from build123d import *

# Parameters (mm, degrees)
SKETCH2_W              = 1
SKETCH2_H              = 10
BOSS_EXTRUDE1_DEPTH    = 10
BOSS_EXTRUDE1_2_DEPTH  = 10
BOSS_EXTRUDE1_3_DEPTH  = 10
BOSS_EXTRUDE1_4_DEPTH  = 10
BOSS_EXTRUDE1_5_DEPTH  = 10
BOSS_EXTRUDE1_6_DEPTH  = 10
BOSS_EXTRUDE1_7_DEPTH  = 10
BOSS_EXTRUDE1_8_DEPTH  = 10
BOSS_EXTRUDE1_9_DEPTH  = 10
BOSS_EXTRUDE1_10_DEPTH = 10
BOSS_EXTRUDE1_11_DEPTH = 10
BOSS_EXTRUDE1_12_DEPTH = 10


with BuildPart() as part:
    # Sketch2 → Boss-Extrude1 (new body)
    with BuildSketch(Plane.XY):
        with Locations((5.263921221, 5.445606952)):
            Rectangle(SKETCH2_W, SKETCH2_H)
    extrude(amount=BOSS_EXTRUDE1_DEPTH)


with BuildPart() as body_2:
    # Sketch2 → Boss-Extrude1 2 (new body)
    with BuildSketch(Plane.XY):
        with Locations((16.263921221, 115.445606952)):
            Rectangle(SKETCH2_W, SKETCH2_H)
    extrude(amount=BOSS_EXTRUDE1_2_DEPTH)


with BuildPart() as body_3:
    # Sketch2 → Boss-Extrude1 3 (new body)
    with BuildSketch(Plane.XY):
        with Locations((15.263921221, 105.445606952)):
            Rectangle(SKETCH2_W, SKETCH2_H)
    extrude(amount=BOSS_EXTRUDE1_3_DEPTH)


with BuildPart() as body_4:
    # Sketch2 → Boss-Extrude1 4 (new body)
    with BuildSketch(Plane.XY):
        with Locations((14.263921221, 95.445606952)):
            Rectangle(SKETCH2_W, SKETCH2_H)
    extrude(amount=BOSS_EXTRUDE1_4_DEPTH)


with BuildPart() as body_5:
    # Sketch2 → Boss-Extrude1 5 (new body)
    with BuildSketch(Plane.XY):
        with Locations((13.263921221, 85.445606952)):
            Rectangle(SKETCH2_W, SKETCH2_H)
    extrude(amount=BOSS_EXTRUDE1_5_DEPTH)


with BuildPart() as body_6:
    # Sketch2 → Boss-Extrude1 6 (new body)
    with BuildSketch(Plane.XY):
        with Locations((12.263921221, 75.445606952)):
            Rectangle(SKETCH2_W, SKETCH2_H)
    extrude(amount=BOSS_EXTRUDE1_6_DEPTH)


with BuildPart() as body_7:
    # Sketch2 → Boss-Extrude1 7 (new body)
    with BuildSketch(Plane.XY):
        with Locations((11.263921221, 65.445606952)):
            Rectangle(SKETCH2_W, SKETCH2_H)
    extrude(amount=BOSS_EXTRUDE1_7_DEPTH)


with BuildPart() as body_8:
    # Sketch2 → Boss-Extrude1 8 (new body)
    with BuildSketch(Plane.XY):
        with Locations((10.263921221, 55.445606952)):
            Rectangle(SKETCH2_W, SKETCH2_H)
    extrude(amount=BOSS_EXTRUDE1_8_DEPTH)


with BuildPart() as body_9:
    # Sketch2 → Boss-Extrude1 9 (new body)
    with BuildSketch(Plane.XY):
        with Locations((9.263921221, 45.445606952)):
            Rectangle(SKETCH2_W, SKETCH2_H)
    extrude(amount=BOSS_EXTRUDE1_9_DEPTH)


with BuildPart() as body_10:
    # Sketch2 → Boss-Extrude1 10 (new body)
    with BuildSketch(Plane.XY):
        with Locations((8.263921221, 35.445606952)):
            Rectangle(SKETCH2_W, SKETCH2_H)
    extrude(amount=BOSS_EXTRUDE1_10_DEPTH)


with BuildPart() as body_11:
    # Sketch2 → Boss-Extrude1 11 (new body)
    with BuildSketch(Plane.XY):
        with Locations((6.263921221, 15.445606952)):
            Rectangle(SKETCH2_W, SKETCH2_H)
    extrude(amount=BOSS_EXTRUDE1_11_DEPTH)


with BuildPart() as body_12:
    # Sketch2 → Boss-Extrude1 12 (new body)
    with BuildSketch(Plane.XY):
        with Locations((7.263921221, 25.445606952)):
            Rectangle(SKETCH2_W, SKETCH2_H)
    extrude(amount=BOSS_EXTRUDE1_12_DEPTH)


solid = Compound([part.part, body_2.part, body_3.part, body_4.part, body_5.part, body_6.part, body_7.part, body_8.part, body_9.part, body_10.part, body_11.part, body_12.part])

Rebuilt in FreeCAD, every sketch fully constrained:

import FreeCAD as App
import Part
import Sketcher
from FreeCAD import Vector


def add_polygon(sketch, points):
    """Adds a closed chain of lines whose ends are joined by coincident constraints."""
    first, n = sketch.GeometryCount, len(points)
    for a, b in zip(points, points[1:] + points[:1]):
        sketch.addGeometry(Part.LineSegment(App.Vector(*a, 0), App.Vector(*b, 0)), False)
    for i in range(n):
        sketch.addConstraint(Sketcher.Constraint("Coincident", first + i, 2, first + (i + 1) % n, 1))

doc = App.newDocument("Part")
body = doc.addObject("PartDesign::Body", "Body")

# Sketch on XY plane
sketch1 = doc.addObject("Sketcher::SketchObject", "Sketch")
body.addObject(sketch1)
sketch1.AttachmentSupport = (doc.XY_Plane, [""])
sketch1.MapMode = "FlatFace"
add_polygon(sketch1, [(4.763921, 10.445607), (4.763921, 0.445607), (5.763921, 0.445607), (5.763921, 10.445607)])  # lines 0-3
sketch1.addConstraint([
    Sketcher.Constraint("Vertical", 0),
    Sketcher.Constraint("Horizontal", 1),
    Sketcher.Constraint("Vertical", 2),
    Sketcher.Constraint("Horizontal", 3),
    Sketcher.Constraint("DistanceX", 1, 1, 1, 2, 1.0),
    Sketcher.Constraint("DistanceY", 0, 2, 0, 1, 10.0),
    Sketcher.Constraint("DistanceX", -1, 1, 0, 2, 4.763921),
    Sketcher.Constraint("DistanceY", -1, 1, 0, 2, 0.445607),
])
pad1 = doc.addObject("PartDesign::Pad", "Pad")
body.addObject(pad1)
pad1.Profile = sketch1
pad1.Length = 10
body2 = doc.addObject("PartDesign::Body", "Body001")

# Sketch on XY plane
sketch2 = doc.addObject("Sketcher::SketchObject", "Sketch001")
body2.addObject(sketch2)
sketch2.AttachmentSupport = (doc.getObject("XY_Plane001"), [""])
sketch2.MapMode = "FlatFace"
add_polygon(sketch2, [(15.763921, 120.445607), (15.763921, 110.445607), (16.763921, 110.445607), (16.763921, 120.445607)])  # lines 0-3
sketch2.addConstraint([
    Sketcher.Constraint("Vertical", 0),
    Sketcher.Constraint("Horizontal", 1),
    Sketcher.Constraint("Vertical", 2),
    Sketcher.Constraint("Horizontal", 3),
    Sketcher.Constraint("DistanceX", 1, 1, 1, 2, 1.0),
    Sketcher.Constraint("DistanceY", 0, 2, 0, 1, 10.0),
    Sketcher.Constraint("DistanceX", -1, 1, 0, 2, 15.763921),
    Sketcher.Constraint("DistanceY", -1, 1, 0, 2, 110.445607),
])
pad2 = doc.addObject("PartDesign::Pad", "Pad001")
body2.addObject(pad2)
pad2.Profile = sketch2
pad2.Length = 10
body3 = doc.addObject("PartDesign::Body", "Body002")

# Sketch on XY plane
sketch3 = doc.addObject("Sketcher::SketchObject", "Sketch002")
body3.addObject(sketch3)
sketch3.AttachmentSupport = (doc.getObject("XY_Plane002"), [""])
sketch3.MapMode = "FlatFace"
add_polygon(sketch3, [(14.763921, 110.445607), (14.763921, 100.445607), (15.763921, 100.445607), (15.763921, 110.445607)])  # lines 0-3
sketch3.addConstraint([
    Sketcher.Constraint("Vertical", 0),
    Sketcher.Constraint("Horizontal", 1),
    Sketcher.Constraint("Vertical", 2),
    Sketcher.Constraint("Horizontal", 3),
    Sketcher.Constraint("DistanceX", 1, 1, 1, 2, 1.0),
    Sketcher.Constraint("DistanceY", 0, 2, 0, 1, 10.0),
    Sketcher.Constraint("DistanceX", -1, 1, 0, 2, 14.763921),
    Sketcher.Constraint("DistanceY", -1, 1, 0, 2, 100.445607),
])
pad3 = doc.addObject("PartDesign::Pad", "Pad002")
body3.addObject(pad3)
pad3.Profile = sketch3
pad3.Length = 10
body4 = doc.addObject("PartDesign::Body", "Body003")

# Sketch on XY plane
sketch4 = doc.addObject("Sketcher::SketchObject", "Sketch003")
body4.addObject(sketch4)
sketch4.AttachmentSupport = (doc.getObject("XY_Plane003"), [""])
sketch4.MapMode = "FlatFace"
add_polygon(sketch4, [(13.763921, 100.445607), (13.763921, 90.445607), (14.763921, 90.445607), (14.763921, 100.445607)])  # lines 0-3
sketch4.addConstraint([
    Sketcher.Constraint("Vertical", 0),
    Sketcher.Constraint("Horizontal", 1),
    Sketcher.Constraint("Vertical", 2),
    Sketcher.Constraint("Horizontal", 3),
    Sketcher.Constraint("DistanceX", 1, 1, 1, 2, 1.0),
    Sketcher.Constraint("DistanceY", 0, 2, 0, 1, 10.0),
    Sketcher.Constraint("DistanceX", -1, 1, 0, 2, 13.763921),
    Sketcher.Constraint("DistanceY", -1, 1, 0, 2, 90.445607),
])
pad4 = doc.addObject("PartDesign::Pad", "Pad003")
body4.addObject(pad4)
pad4.Profile = sketch4
pad4.Length = 10
body5 = doc.addObject("PartDesign::Body", "Body004")

# Sketch on XY plane
sketch5 = doc.addObject("Sketcher::SketchObject", "Sketch004")
body5.addObject(sketch5)
sketch5.AttachmentSupport = (doc.getObject("XY_Plane004"), [""])
sketch5.MapMode = "FlatFace"
add_polygon(sketch5, [(12.763921, 90.445607), (12.763921, 80.445607), (13.763921, 80.445607), (13.763921, 90.445607)])  # lines 0-3
sketch5.addConstraint([
    Sketcher.Constraint("Vertical", 0),
    Sketcher.Constraint("Horizontal", 1),
    Sketcher.Constraint("Vertical", 2),
    Sketcher.Constraint("Horizontal", 3),
    Sketcher.Constraint("DistanceX", 1, 1, 1, 2, 1.0),
    Sketcher.Constraint("DistanceY", 0, 2, 0, 1, 10.0),
    Sketcher.Constraint("DistanceX", -1, 1, 0, 2, 12.763921),
    Sketcher.Constraint("DistanceY", -1, 1, 0, 2, 80.445607),
])
pad5 = doc.addObject("PartDesign::Pad", "Pad004")
body5.addObject(pad5)
pad5.Profile = sketch5
pad5.Length = 10
body6 = doc.addObject("PartDesign::Body", "Body005")

# Sketch on XY plane
sketch6 = doc.addObject("Sketcher::SketchObject", "Sketch005")
body6.addObject(sketch6)
sketch6.AttachmentSupport = (doc.getObject("XY_Plane005"), [""])
sketch6.MapMode = "FlatFace"
add_polygon(sketch6, [(11.763921, 80.445607), (11.763921, 70.445607), (12.763921, 70.445607), (12.763921, 80.445607)])  # lines 0-3
sketch6.addConstraint([
    Sketcher.Constraint("Vertical", 0),
    Sketcher.Constraint("Horizontal", 1),
    Sketcher.Constraint("Vertical", 2),
    Sketcher.Constraint("Horizontal", 3),
    Sketcher.Constraint("DistanceX", 1, 1, 1, 2, 1.0),
    Sketcher.Constraint("DistanceY", 0, 2, 0, 1, 10.0),
    Sketcher.Constraint("DistanceX", -1, 1, 0, 2, 11.763921),
    Sketcher.Constraint("DistanceY", -1, 1, 0, 2, 70.445607),
])
pad6 = doc.addObject("PartDesign::Pad", "Pad005")
body6.addObject(pad6)
pad6.Profile = sketch6
pad6.Length = 10
body7 = doc.addObject("PartDesign::Body", "Body006")

# Sketch on XY plane
sketch7 = doc.addObject("Sketcher::SketchObject", "Sketch006")
body7.addObject(sketch7)
sketch7.AttachmentSupport = (doc.getObject("XY_Plane006"), [""])
sketch7.MapMode = "FlatFace"
add_polygon(sketch7, [(10.763921, 70.445607), (10.763921, 60.445607), (11.763921, 60.445607), (11.763921, 70.445607)])  # lines 0-3
sketch7.addConstraint([
    Sketcher.Constraint("Vertical", 0),
    Sketcher.Constraint("Horizontal", 1),
    Sketcher.Constraint("Vertical", 2),
    Sketcher.Constraint("Horizontal", 3),
    Sketcher.Constraint("DistanceX", 1, 1, 1, 2, 1.0),
    Sketcher.Constraint("DistanceY", 0, 2, 0, 1, 10.0),
    Sketcher.Constraint("DistanceX", -1, 1, 0, 2, 10.763921),
    Sketcher.Constraint("DistanceY", -1, 1, 0, 2, 60.445607),
])
pad7 = doc.addObject("PartDesign::Pad", "Pad006")
body7.addObject(pad7)
pad7.Profile = sketch7
pad7.Length = 10
body8 = doc.addObject("PartDesign::Body", "Body007")

# Sketch on XY plane
sketch8 = doc.addObject("Sketcher::SketchObject", "Sketch007")
body8.addObject(sketch8)
sketch8.AttachmentSupport = (doc.getObject("XY_Plane007"), [""])
sketch8.MapMode = "FlatFace"
add_polygon(sketch8, [(9.763921, 60.445607), (9.763921, 50.445607), (10.763921, 50.445607), (10.763921, 60.445607)])  # lines 0-3
sketch8.addConstraint([
    Sketcher.Constraint("Vertical", 0),
    Sketcher.Constraint("Horizontal", 1),
    Sketcher.Constraint("Vertical", 2),
    Sketcher.Constraint("Horizontal", 3),
    Sketcher.Constraint("DistanceX", 1, 1, 1, 2, 1.0),
    Sketcher.Constraint("DistanceY", 0, 2, 0, 1, 10.0),
    Sketcher.Constraint("DistanceX", -1, 1, 0, 2, 9.763921),
    Sketcher.Constraint("DistanceY", -1, 1, 0, 2, 50.445607),
])
pad8 = doc.addObject("PartDesign::Pad", "Pad007")
body8.addObject(pad8)
pad8.Profile = sketch8
pad8.Length = 10
body9 = doc.addObject("PartDesign::Body", "Body008")

# Sketch on XY plane
sketch9 = doc.addObject("Sketcher::SketchObject", "Sketch008")
body9.addObject(sketch9)
sketch9.AttachmentSupport = (doc.getObject("XY_Plane008"), [""])
sketch9.MapMode = "FlatFace"
add_polygon(sketch9, [(8.763921, 50.445607), (8.763921, 40.445607), (9.763921, 40.445607), (9.763921, 50.445607)])  # lines 0-3
sketch9.addConstraint([
    Sketcher.Constraint("Vertical", 0),
    Sketcher.Constraint("Horizontal", 1),
    Sketcher.Constraint("Vertical", 2),
    Sketcher.Constraint("Horizontal", 3),
    Sketcher.Constraint("DistanceX", 1, 1, 1, 2, 1.0),
    Sketcher.Constraint("DistanceY", 0, 2, 0, 1, 10.0),
    Sketcher.Constraint("DistanceX", -1, 1, 0, 2, 8.763921),
    Sketcher.Constraint("DistanceY", -1, 1, 0, 2, 40.445607),
])
pad9 = doc.addObject("PartDesign::Pad", "Pad008")
body9.addObject(pad9)
pad9.Profile = sketch9
pad9.Length = 10
body10 = doc.addObject("PartDesign::Body", "Body009")

# Sketch on XY plane
sketch10 = doc.addObject("Sketcher::SketchObject", "Sketch009")
body10.addObject(sketch10)
sketch10.AttachmentSupport = (doc.getObject("XY_Plane009"), [""])
sketch10.MapMode = "FlatFace"
add_polygon(sketch10, [(7.763921, 40.445607), (7.763921, 30.445607), (8.763921, 30.445607), (8.763921, 40.445607)])  # lines 0-3
sketch10.addConstraint([
    Sketcher.Constraint("Vertical", 0),
    Sketcher.Constraint("Horizontal", 1),
    Sketcher.Constraint("Vertical", 2),
    Sketcher.Constraint("Horizontal", 3),
    Sketcher.Constraint("DistanceX", 1, 1, 1, 2, 1.0),
    Sketcher.Constraint("DistanceY", 0, 2, 0, 1, 10.0),
    Sketcher.Constraint("DistanceX", -1, 1, 0, 2, 7.763921),
    Sketcher.Constraint("DistanceY", -1, 1, 0, 2, 30.445607),
])
pad10 = doc.addObject("PartDesign::Pad", "Pad009")
body10.addObject(pad10)
pad10.Profile = sketch10
pad10.Length = 10
body11 = doc.addObject("PartDesign::Body", "Body010")

# Sketch on XY plane
sketch11 = doc.addObject("Sketcher::SketchObject", "Sketch010")
body11.addObject(sketch11)
sketch11.AttachmentSupport = (doc.getObject("XY_Plane010"), [""])
sketch11.MapMode = "FlatFace"
add_polygon(sketch11, [(5.763921, 20.445607), (5.763921, 10.445607), (6.763921, 10.445607), (6.763921, 20.445607)])  # lines 0-3
sketch11.addConstraint([
    Sketcher.Constraint("Vertical", 0),
    Sketcher.Constraint("Horizontal", 1),
    Sketcher.Constraint("Vertical", 2),
    Sketcher.Constraint("Horizontal", 3),
    Sketcher.Constraint("DistanceX", 1, 1, 1, 2, 1.0),
    Sketcher.Constraint("DistanceY", 0, 2, 0, 1, 10.0),
    Sketcher.Constraint("DistanceX", -1, 1, 0, 2, 5.763921),
    Sketcher.Constraint("DistanceY", -1, 1, 0, 2, 10.445607),
])
pad11 = doc.addObject("PartDesign::Pad", "Pad010")
body11.addObject(pad11)
pad11.Profile = sketch11
pad11.Length = 10
body12 = doc.addObject("PartDesign::Body", "Body011")

# Sketch on XY plane
sketch12 = doc.addObject("Sketcher::SketchObject", "Sketch011")
body12.addObject(sketch12)
sketch12.AttachmentSupport = (doc.getObject("XY_Plane011"), [""])
sketch12.MapMode = "FlatFace"
add_polygon(sketch12, [(6.763921, 30.445607), (6.763921, 20.445607), (7.763921, 20.445607), (7.763921, 30.445607)])  # lines 0-3
sketch12.addConstraint([
    Sketcher.Constraint("Vertical", 0),
    Sketcher.Constraint("Horizontal", 1),
    Sketcher.Constraint("Vertical", 2),
    Sketcher.Constraint("Horizontal", 3),
    Sketcher.Constraint("DistanceX", 1, 1, 1, 2, 1.0),
    Sketcher.Constraint("DistanceY", 0, 2, 0, 1, 10.0),
    Sketcher.Constraint("DistanceX", -1, 1, 0, 2, 6.763921),
    Sketcher.Constraint("DistanceY", -1, 1, 0, 2, 20.445607),
])
pad12 = doc.addObject("PartDesign::Pad", "Pad011")
body12.addObject(pad12)
pad12.Profile = sketch12
pad12.Length = 10

doc.recompute()
